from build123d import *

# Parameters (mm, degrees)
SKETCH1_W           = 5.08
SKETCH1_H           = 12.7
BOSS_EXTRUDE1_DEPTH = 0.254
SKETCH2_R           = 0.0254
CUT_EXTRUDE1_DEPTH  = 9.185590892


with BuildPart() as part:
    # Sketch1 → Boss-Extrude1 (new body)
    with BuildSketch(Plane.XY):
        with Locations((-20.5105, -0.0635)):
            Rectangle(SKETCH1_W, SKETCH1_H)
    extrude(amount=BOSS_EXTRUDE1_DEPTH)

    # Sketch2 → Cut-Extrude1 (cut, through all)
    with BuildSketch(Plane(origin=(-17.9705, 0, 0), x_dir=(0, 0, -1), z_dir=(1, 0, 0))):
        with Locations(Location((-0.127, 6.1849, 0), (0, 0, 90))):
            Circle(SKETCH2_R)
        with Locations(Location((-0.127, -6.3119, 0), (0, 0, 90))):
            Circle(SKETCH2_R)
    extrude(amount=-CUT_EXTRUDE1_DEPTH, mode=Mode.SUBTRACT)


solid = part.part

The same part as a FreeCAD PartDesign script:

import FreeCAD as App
import Part
import Sketcher
Q = App.Units.Quantity


def add_polygon(sketch, points):
    """Adds a closed chain of lines whose ends are joined by coincident constraints."""
    first, n = sketch.GeometryCount, len(points)
    for a, b in zip(points, points[1:] + points[:1]):
        sketch.addGeometry(Part.LineSegment(App.Vector(*a, 0), App.Vector(*b, 0)), False)
    for i in range(n):
        sketch.addConstraint(Sketcher.Constraint("Coincident", first + i, 2, first + (i + 1) % n, 1))

doc = App.newDocument("Part")
body = doc.addObject("PartDesign::Body", "Body")

# Sketch on XY plane
sketch1 = body.newObject("Sketcher::SketchObject", "Sketch")
sketch1.AttachmentSupport = (doc.getObject("XY_Plane"), [""])
sketch1.MapMode = "FlatFace"
add_polygon(sketch1, [(-23, 6), (-23, -6), (-18, -6), (-18, 6)])  # lines 0-3
sketch1.addConstraint([
    Sketcher.Constraint("Vertical", 0),
    Sketcher.Constraint("Horizontal", 1),
    Sketcher.Constraint("Vertical", 2),
    Sketcher.Constraint("Horizontal", 3),
    Sketcher.Constraint("DistanceX", 1, 1, 1, 2, Q("0.2 in")),
    Sketcher.Constraint("DistanceY", 0, 2, 0, 1, Q("0.5 in")),
    Sketcher.Constraint("DistanceX", 0, 2, -1, 1, Q("0.9075 in")),
    Sketcher.Constraint("DistanceY", 0, 2, -1, 1, Q("0.2525 in")),
])
pad1 = body.newObject("PartDesign::Pad", "Pad")
pad1.Profile = sketch1
pad1.Length = Q("0.01 in")

# Sketch on YZ plane
sketch2 = body.newObject("Sketcher::SketchObject", "Sketch001")
sketch2.AttachmentSupport = (doc.getObject("YZ_Plane"), [""])
sketch2.MapMode = "FlatFace"
sketch2.AttachmentOffset = App.Placement(App.Vector(0, 0, -0.7075 * 25.4), App.Rotation())
sketch2.addGeometry([
    Part.Circle(App.Vector(6.185, 0.127, 0), App.Vector(0, 0, 1), 0.025),
    Part.Circle(App.Vector(-6.312, 0.127, 0), App.Vector(0, 0, 1), 0.025),
], False)
sketch2.addConstraint([
    Sketcher.Constraint("Equal", 0, 1),
    Sketcher.Constraint("Horizontal", 0, 3, 1, 3),
    Sketcher.Constraint("Diameter", 0, Q("0.002 in")),
    Sketcher.Constraint("DistanceY", -1, 1, 0, 3, Q("0.005 in")),
    Sketcher.Constraint("DistanceX", 1, 3, 0, 3, Q("0.492 in")),
    Sketcher.Constraint("DistanceX", -1, 1, 0, 3, Q("0.2435 in")),
])
pocket1 = body.newObject("PartDesign::Pocket", "Pocket")
pocket1.Profile = sketch2
pocket1.Type = "ThroughAll"

doc.recompute()
